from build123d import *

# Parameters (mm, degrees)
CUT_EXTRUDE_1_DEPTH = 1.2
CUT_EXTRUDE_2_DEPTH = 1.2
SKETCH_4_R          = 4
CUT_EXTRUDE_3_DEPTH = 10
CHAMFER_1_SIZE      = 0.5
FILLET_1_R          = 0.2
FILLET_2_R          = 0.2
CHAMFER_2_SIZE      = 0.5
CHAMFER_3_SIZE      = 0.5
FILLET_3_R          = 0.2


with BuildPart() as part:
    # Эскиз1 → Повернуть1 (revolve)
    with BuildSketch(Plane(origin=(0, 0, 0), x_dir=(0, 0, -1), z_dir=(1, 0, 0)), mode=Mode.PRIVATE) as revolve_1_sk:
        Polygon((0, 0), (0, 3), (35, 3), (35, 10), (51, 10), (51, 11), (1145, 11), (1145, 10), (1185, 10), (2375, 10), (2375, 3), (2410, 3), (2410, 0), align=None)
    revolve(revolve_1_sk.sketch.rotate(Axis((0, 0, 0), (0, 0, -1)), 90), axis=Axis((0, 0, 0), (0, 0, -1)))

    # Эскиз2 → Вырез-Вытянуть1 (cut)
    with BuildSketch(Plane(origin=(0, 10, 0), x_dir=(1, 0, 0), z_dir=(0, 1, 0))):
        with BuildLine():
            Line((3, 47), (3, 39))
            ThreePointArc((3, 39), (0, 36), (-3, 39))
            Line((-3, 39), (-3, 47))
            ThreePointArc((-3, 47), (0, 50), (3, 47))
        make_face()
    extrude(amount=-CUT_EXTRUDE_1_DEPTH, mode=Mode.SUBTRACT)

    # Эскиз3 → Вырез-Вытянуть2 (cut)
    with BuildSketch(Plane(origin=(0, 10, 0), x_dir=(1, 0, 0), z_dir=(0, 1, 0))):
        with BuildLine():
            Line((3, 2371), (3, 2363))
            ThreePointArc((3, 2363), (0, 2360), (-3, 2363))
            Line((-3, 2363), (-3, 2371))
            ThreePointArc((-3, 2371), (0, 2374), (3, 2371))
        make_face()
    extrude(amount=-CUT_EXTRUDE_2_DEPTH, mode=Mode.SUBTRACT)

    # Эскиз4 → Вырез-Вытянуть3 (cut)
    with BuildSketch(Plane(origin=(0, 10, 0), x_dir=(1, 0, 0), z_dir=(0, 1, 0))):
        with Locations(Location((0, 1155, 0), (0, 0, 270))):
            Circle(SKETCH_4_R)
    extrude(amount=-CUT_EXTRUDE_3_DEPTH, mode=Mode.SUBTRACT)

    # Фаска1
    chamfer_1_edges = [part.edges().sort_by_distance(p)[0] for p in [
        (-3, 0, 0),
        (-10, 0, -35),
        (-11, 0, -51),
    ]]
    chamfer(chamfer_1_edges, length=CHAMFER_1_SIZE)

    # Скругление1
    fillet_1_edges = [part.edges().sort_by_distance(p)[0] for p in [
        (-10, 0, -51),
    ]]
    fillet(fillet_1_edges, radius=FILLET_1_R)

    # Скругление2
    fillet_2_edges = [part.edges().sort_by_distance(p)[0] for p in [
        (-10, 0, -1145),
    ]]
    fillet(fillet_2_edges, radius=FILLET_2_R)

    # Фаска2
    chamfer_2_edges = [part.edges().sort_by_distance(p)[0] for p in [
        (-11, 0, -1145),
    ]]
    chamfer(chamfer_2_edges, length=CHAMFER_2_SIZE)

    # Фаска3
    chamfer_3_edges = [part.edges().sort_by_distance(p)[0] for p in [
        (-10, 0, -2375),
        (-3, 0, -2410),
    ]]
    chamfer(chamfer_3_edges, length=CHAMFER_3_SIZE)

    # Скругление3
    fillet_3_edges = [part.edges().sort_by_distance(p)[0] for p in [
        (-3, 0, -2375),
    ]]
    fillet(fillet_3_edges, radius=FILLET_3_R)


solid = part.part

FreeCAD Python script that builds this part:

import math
import FreeCAD as App
import Part
import Sketcher
from FreeCAD import Vector


def edges_at(feature, points):
    """Names of the edges that pass closest to the given points."""
    edges = feature.Shape.Edges
    near = lambda p: min(range(len(edges)), key=lambda i: edges[i].distToShape(Part.Vertex(*p))[0])
    return sorted({f"Edge{near(p) + 1}" for p in points})


def add_polygon(sketch, points):
    """Adds a closed chain of lines whose ends are joined by coincident constraints."""
    first, n = sketch.GeometryCount, len(points)
    for a, b in zip(points, points[1:] + points[:1]):
        sketch.addGeometry(Part.LineSegment(App.Vector(*a, 0), App.Vector(*b, 0)), False)
    for i in range(n):
        sketch.addConstraint(Sketcher.Constraint("Coincident", first + i, 2, first + (i + 1) % n, 1))

doc = App.newDocument("Part")
body = doc.addObject("PartDesign::Body", "Body")

# Sketch on YZ plane
sketch1 = body.newObject("Sketcher::SketchObject", "Sketch")
sketch1.AttachmentSupport = (doc.getObject("YZ_Plane"), [""])
sketch1.MapMode = "FlatFace"
add_polygon(sketch1, [(3, 0), (0, 0), (0, -2410), (3, -2410), (3, -2375), (10, -2375), (10, -1145), (11, -1145), (11, -51), (10, -51), (10, -35), (3, -35)])  # lines 0-11
sketch1.addConstraint([
    Sketcher.Constraint("Horizontal", 0),
    Sketcher.Constraint("Vertical", 1),
    Sketcher.Constraint("Horizontal", 2),
    Sketcher.Constraint("Vertical", 3),
    Sketcher.Constraint("Horizontal", 4),
    Sketcher.Constraint("Vertical", 5),
    Sketcher.Constraint("Horizontal", 6),
    Sketcher.Constraint("Vertical", 7),
    Sketcher.Constraint("Horizontal", 8),
    Sketcher.Constraint("Vertical", 9),
    Sketcher.Constraint("Horizontal", 10),
    Sketcher.Constraint("Vertical", 11),
    Sketcher.Constraint("Coincident", 0, 2, -1, 1),
    Sketcher.Constraint("Vertical", 5, 2, 8, 2),
    Sketcher.Constraint("Vertical", 3, 2, 10, 2),
    Sketcher.Constraint("Equal", 3, 11),
    Sketcher.Constraint("DistanceX", 0, 2, 0, 1, 3.0),
    Sketcher.Constraint("DistanceX", 4, 1, 4, 2, 7.0),
    Sketcher.Constraint("DistanceX", 6, 1, 6, 2, 1.0),
    Sketcher.Constraint("DistanceY", 1, 2, 1, 1, 2410.0),
    Sketcher.Constraint("DistanceY", 3, 1, 3, 2, 35.0),
    Sketcher.Constraint("DistanceY", 5, 1, 5, 2, 1230.0),
    Sketcher.Constraint("DistanceY", 7, 1, 7, 2, 1094.0),
])
revolution = body.newObject("PartDesign::Revolution", "Revolution")
revolution.Profile = sketch1
revolution.ReferenceAxis = (sketch1, ["V_Axis"])
revolution.Angle = 360

# Sketch on XZ plane
sketch2 = body.newObject("Sketcher::SketchObject", "Sketch001")
sketch2.AttachmentSupport = (doc.getObject("XZ_Plane"), [""])
sketch2.MapMode = "FlatFace"
sketch2.AttachmentOffset = App.Placement(Vector(0, 0, -10), App.Rotation())
sketch2.addGeometry([
    Part.LineSegment(Vector(3, -39, 0), Vector(3, -47, 0)),
    Part.ArcOfCircle(Part.Circle(Vector(0, -47, 0), Vector(0, 0, 1), 3), math.radians(180), math.radians(360)),
    Part.LineSegment(Vector(-3, -47, 0), Vector(-3, -39, 0)),
    Part.ArcOfCircle(Part.Circle(Vector(0, -39, 0), Vector(0, 0, 1), 3), math.radians(0), math.radians(180)),
], False)
sketch2.addConstraint([
    Sketcher.Constraint("Tangent", 0, 2, 1, 2),
    Sketcher.Constraint("Tangent", 1, 1, 2, 1),
    Sketcher.Constraint("Tangent", 2, 2, 3, 2),
    Sketcher.Constraint("Tangent", 3, 1, 0, 1),
    Sketcher.Constraint("Vertical", 0),
    Sketcher.Constraint("Vertical", 2),
    Sketcher.Constraint("PointOnObject", 1, 3, -2),
    Sketcher.Constraint("Radius", 1, 3.0),
    Sketcher.Constraint("DistanceY", 0, 2, 0, 1, 8.0),
    Sketcher.Constraint("DistanceY", 1, 3, -1, 1, 47.0),
])
pocket1 = body.newObject("PartDesign::Pocket", "Pocket")
pocket1.Profile = sketch2
pocket1.Length = 1.2
pocket1.Reversed = True

# Sketch on XZ plane
sketch3 = body.newObject("Sketcher::SketchObject", "Sketch002")
sketch3.AttachmentSupport = (doc.getObject("XZ_Plane"), [""])
sketch3.MapMode = "FlatFace"
sketch3.AttachmentOffset = App.Placement(Vector(0, 0, -10), App.Rotation())
sketch3.addGeometry([
    Part.LineSegment(Vector(3, -2363, 0), Vector(3, -2371, 0)),
    Part.ArcOfCircle(Part.Circle(Vector(0, -2371, 0), Vector(0, 0, 1), 3), math.radians(180), math.radians(360)),
    Part.LineSegment(Vector(-3, -2371, 0), Vector(-3, -2363, 0)),
    Part.ArcOfCircle(Part.Circle(Vector(0, -2363, 0), Vector(0, 0, 1), 3), math.radians(0), math.radians(180)),
], False)
sketch3.addConstraint([
    Sketcher.Constraint("Tangent", 0, 2, 1, 2),
    Sketcher.Constraint("Tangent", 1, 1, 2, 1),
    Sketcher.Constraint("Tangent", 2, 2, 3, 2),
    Sketcher.Constraint("Tangent", 3, 1, 0, 1),
    Sketcher.Constraint("Vertical", 0),
    Sketcher.Constraint("Vertical", 2),
    Sketcher.Constraint("PointOnObject", 1, 3, -2),
    Sketcher.Constraint("Radius", 1, 3.0),
    Sketcher.Constraint("DistanceY", 0, 2, 0, 1, 8.0),
    Sketcher.Constraint("DistanceY", 1, 3, -1, 1, 2371.0),
])
pocket2 = body.newObject("PartDesign::Pocket", "Pocket001")
pocket2.Profile = sketch3
pocket2.Length = 1.2
pocket2.Reversed = True

# Sketch on XZ plane
sketch4 = body.newObject("Sketcher::SketchObject", "Sketch003")
sketch4.AttachmentSupport = (doc.getObject("XZ_Plane"), [""])
sketch4.MapMode = "FlatFace"
sketch4.AttachmentOffset = App.Placement(Vector(0, 0, -10), App.Rotation())
sketch4.addGeometry(Part.Circle(Vector(0, -1155, 0), Vector(0, 0, 1), 4), False)
sketch4.addConstraint([
    Sketcher.Constraint("PointOnObject", 0, 3, -2),
    Sketcher.Constraint("Diameter", 0, 8.0),
    Sketcher.Constraint("DistanceY", 0, 3, -1, 1, 1155.0),
])
pocket3 = body.newObject("PartDesign::Pocket", "Pocket002")
pocket3.Profile = sketch4
pocket3.Length = 10
pocket3.Reversed = True
doc.recompute()

chamfer = body.newObject("PartDesign::Chamfer", "Chamfer")
chamfer.Base = (pocket3, edges_at(pocket3, [(-3, 0, 0), (-10, 0, -35), (-11, 0, -51)]))
chamfer.Size = 0.5
doc.recompute()

fillet = body.newObject("PartDesign::Fillet", "Fillet")
fillet.Base = (chamfer, edges_at(chamfer, [(-10, 0, -51)]))
fillet.Radius = 0.2
doc.recompute()

fillet2 = body.newObject("PartDesign::Fillet", "Fillet001")
fillet2.Base = (fillet, edges_at(fillet, [(-10, 0, -1145)]))
fillet2.Radius = 0.2
doc.recompute()

chamfer2 = body.newObject("PartDesign::Chamfer", "Chamfer001")
chamfer2.Base = (fillet2, edges_at(fillet2, [(-11, 0, -1145)]))
chamfer2.Size = 0.5
doc.recompute()

chamfer3 = body.newObject("PartDesign::Chamfer", "Chamfer002")
chamfer3.Base = (chamfer2, edges_at(chamfer2, [(-10, 0, -2375), (-3, 0, -2410)]))
chamfer3.Size = 0.5
doc.recompute()

fillet3 = body.newObject("PartDesign::Fillet", "Fillet002")
fillet3.Base = (chamfer3, edges_at(chamfer3, [(-3, 0, -2375)]))
fillet3.Radius = 0.2

doc.recompute()
